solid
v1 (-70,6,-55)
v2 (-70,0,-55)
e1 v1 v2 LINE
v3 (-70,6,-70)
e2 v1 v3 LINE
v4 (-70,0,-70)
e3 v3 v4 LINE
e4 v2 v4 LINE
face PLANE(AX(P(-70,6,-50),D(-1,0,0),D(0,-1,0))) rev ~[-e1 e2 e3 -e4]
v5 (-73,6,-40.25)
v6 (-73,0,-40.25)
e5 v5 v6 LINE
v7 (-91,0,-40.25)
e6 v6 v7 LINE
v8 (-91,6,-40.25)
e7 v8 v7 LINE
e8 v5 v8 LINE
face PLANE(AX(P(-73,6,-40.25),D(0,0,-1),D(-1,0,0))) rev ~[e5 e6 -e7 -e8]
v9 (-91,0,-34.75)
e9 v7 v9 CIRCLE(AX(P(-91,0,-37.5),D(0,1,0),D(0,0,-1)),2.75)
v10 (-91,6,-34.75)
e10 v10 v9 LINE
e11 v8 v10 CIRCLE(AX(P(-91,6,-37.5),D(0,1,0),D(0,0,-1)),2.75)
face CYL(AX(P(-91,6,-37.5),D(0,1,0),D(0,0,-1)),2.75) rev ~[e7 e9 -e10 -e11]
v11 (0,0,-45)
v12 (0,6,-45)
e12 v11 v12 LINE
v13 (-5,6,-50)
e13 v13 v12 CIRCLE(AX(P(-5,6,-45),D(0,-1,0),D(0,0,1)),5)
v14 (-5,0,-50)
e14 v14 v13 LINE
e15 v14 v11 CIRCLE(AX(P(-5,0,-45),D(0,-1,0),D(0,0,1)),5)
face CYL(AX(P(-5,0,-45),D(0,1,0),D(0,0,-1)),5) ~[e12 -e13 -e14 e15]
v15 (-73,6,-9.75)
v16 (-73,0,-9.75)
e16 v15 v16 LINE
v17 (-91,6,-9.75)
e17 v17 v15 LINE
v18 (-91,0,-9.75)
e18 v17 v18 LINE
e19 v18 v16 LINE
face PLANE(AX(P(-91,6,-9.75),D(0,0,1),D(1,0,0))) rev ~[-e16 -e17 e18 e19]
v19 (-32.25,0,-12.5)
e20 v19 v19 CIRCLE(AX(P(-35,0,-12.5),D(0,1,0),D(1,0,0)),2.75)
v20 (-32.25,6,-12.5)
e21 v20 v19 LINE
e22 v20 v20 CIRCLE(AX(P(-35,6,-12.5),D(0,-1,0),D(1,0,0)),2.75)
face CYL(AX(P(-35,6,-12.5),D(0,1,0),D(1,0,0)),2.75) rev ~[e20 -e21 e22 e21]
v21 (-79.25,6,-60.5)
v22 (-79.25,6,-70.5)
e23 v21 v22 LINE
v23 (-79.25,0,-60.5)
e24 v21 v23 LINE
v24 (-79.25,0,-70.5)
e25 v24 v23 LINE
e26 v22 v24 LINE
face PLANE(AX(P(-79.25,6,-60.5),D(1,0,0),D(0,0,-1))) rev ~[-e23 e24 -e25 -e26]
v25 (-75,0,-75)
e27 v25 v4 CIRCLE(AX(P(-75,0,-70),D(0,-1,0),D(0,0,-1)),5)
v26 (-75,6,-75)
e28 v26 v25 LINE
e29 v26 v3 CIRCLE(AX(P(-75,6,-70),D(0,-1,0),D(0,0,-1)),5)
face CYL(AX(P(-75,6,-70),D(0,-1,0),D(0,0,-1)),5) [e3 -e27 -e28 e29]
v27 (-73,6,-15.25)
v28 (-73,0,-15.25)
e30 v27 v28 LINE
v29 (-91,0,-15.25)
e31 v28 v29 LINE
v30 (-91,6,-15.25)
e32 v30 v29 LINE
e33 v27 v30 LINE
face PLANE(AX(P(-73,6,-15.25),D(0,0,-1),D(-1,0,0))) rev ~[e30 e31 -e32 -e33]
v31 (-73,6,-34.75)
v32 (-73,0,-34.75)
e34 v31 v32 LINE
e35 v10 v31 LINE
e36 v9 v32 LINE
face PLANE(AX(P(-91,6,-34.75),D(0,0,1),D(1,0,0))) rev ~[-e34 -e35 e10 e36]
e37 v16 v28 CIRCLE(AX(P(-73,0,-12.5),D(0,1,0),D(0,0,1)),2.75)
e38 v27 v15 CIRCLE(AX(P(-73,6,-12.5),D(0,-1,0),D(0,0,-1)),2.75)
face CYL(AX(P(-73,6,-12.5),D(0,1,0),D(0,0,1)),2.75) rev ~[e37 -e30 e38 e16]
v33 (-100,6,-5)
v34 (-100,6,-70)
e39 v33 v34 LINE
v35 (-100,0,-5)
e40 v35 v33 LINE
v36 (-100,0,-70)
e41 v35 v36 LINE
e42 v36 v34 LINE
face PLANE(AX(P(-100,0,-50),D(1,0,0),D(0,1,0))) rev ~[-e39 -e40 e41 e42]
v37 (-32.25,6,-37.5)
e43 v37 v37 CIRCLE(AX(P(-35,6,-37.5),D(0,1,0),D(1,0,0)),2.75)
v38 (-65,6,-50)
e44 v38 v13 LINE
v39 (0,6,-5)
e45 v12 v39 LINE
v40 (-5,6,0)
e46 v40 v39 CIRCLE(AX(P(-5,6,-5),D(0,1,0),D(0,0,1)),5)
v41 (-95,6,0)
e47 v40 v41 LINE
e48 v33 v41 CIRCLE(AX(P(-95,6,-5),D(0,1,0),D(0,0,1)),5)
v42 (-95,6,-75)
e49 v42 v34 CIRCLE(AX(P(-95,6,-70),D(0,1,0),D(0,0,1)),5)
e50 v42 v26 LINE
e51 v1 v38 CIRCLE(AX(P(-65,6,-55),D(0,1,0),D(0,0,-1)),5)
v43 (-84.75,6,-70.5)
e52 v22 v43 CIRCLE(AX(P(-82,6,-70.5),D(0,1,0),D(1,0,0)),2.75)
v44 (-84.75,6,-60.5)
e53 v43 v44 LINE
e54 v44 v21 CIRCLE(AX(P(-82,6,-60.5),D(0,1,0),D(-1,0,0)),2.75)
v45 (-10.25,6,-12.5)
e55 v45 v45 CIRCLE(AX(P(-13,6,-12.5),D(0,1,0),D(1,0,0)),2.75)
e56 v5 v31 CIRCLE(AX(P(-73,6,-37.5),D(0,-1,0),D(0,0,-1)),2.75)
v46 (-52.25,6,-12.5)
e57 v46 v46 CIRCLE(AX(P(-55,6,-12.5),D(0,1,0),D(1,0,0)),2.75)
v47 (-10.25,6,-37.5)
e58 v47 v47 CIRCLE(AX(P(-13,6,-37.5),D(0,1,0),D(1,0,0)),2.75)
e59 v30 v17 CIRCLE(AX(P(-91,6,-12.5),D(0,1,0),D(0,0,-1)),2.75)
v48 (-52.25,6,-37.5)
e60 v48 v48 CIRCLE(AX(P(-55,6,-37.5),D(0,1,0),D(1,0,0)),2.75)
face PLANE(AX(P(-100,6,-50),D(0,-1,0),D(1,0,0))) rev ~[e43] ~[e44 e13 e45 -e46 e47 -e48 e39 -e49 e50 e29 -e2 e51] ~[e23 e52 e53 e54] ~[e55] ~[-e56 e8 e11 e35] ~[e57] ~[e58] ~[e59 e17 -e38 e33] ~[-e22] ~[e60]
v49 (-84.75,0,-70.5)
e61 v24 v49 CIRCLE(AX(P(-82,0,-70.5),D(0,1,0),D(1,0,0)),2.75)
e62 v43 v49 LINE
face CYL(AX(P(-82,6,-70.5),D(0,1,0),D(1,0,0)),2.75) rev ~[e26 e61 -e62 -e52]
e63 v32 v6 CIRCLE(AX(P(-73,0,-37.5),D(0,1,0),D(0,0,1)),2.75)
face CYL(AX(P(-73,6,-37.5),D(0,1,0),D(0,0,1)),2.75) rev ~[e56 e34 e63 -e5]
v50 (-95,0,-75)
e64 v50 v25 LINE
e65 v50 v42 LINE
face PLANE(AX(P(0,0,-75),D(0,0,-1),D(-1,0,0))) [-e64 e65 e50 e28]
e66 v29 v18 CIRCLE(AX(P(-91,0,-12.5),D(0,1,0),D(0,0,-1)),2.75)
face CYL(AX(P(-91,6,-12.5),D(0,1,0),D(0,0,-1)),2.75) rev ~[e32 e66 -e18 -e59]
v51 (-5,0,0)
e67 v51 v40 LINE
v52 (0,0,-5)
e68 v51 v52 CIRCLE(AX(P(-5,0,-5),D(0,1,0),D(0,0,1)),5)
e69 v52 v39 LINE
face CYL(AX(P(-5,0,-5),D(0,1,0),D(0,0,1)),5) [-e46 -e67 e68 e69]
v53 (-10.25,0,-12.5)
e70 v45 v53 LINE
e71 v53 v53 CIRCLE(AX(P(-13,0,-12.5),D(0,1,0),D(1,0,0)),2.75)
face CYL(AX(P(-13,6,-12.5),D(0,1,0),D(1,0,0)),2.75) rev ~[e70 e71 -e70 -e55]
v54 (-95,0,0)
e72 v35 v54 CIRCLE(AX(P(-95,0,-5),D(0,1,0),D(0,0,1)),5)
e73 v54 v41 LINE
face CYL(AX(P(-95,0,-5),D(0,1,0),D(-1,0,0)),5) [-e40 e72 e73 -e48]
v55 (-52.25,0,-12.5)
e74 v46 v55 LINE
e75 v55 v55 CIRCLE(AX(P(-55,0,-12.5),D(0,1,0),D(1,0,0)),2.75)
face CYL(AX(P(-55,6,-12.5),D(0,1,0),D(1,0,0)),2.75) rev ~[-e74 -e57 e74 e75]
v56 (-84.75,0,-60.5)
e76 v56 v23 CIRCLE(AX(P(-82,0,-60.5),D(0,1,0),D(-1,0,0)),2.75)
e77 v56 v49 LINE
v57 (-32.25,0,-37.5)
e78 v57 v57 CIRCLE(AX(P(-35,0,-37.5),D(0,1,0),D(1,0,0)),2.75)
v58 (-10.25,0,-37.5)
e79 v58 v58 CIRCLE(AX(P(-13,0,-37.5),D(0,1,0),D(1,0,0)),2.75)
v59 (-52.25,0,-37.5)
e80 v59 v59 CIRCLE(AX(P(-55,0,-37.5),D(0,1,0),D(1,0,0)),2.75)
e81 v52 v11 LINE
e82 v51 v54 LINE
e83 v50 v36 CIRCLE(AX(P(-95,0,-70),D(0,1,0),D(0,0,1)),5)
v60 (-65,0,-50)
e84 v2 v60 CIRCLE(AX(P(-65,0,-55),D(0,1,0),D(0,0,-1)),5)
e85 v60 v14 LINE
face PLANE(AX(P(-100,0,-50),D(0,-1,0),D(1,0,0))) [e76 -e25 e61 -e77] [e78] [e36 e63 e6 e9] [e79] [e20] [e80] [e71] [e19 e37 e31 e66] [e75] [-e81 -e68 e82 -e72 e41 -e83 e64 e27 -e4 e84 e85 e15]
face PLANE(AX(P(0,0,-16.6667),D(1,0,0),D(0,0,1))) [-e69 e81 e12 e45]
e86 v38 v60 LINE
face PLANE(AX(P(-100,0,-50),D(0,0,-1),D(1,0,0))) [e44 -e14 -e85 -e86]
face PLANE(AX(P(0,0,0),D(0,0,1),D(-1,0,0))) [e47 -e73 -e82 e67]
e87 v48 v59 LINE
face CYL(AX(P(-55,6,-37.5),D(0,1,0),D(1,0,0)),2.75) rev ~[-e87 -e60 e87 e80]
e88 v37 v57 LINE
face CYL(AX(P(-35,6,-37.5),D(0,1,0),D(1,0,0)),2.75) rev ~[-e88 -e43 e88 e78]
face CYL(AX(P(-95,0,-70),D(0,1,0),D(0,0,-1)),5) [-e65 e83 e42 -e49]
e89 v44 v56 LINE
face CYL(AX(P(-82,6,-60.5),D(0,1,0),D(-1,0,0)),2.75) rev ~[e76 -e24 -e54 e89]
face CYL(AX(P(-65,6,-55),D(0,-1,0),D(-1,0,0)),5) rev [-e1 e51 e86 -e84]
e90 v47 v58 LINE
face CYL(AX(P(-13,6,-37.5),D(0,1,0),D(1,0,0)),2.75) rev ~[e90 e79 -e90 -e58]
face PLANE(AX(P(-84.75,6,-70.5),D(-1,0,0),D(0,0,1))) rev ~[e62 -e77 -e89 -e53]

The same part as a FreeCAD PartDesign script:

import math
import FreeCAD as App
import Part
import Sketcher

V = App.Vector
Q = App.Units.Quantity


def edges_at(feature, points):
    """Names of the edges that pass closest to the given points."""
    edges = feature.Shape.Edges
    near = lambda p: min(range(len(edges)), key=lambda i: edges[i].distToShape(Part.Vertex(*p))[0])
    return sorted({f"Edge{near(p) + 1}" for p in points})

doc = App.newDocument("Part")
body = doc.addObject("PartDesign::Body", "Body")

# Sketch on XZ plane
sketch1 = body.newObject("Sketcher::SketchObject", "Sketch")
sketch1.AttachmentSupport = (doc.getObject("XZ_Plane"), [""])
sketch1.MapMode = "FlatFace"
sketch1.addGeometry([
    Part.LineSegment(V(-100, 0, 0), V(0, 0, 0)),
    Part.LineSegment(V(0, 0, 0), V(0, -50, 0)),
    Part.LineSegment(V(0, -50, 0), V(-100, -50, 0)),
    Part.LineSegment(V(-100, -50, 0), V(-100, 0, 0)),
], False)
sketch1.addConstraint([
    Sketcher.Constraint("Coincident", 0, 2, 1, 1),
    Sketcher.Constraint("Coincident", 1, 2, 2, 1),
    Sketcher.Constraint("Coincident", 2, 2, 3, 1),
    Sketcher.Constraint("Coincident", 3, 2, 0, 1),
    Sketcher.Constraint("Horizontal", 0),
    Sketcher.Constraint("Vertical", 1),
    Sketcher.Constraint("Horizontal", 2),
    Sketcher.Constraint("Vertical", 3),
    Sketcher.Constraint("Coincident", 0, 2, -1, 1),
    Sketcher.Constraint("DistanceX", 0, 1, 0, 2, Q("100 mm")),
    Sketcher.Constraint("DistanceY", 1, 2, 1, 1, Q("50 mm")),
])
pad1 = body.newObject("PartDesign::Pad", "Pad")
pad1.Profile = sketch1
pad1.Length = 6
pad1.Reversed = True

# Sketch on XZ plane
sketch2 = body.newObject("Sketcher::SketchObject", "Sketch001")
sketch2.AttachmentSupport = (doc.getObject("XZ_Plane"), [""])
sketch2.MapMode = "FlatFace"
sketch2.AttachmentOffset = App.Placement(V(0, 0, -6), App.Rotation())
sketch2.addGeometry([
    Part.Circle(V(-13, -12.5, 0), V(0, 0, 1), 2.8),
    Part.Circle(V(-13, -37.5, 0), V(0, 0, 1), 2.8),
], False)
sketch2.addConstraint([
    Sketcher.Constraint("Equal", 0, 1),
    Sketcher.Constraint("Vertical", 0, 3, 1, 3),
    Sketcher.Constraint("Diameter", 0, Q("5.5 mm")),
    Sketcher.Constraint("DistanceX", 0, 3, -1, 1, Q("13 mm")),
    Sketcher.Constraint("DistanceY", 1, 3, 0, 3, Q("25 mm")),
    Sketcher.Constraint("DistanceY", 0, 3, -1, 1, Q("12.5 mm")),
])
pocket1 = body.newObject("PartDesign::Pocket", "Pocket")
pocket1.Profile = sketch2
pocket1.Type = "ThroughAll"
pocket1.Reversed = True

# Sketch on XZ plane
sketch3 = body.newObject("Sketcher::SketchObject", "Sketch002")
sketch3.AttachmentSupport = (doc.getObject("XZ_Plane"), [""])
sketch3.MapMode = "FlatFace"
sketch3.AttachmentOffset = App.Placement(V(0, 0, -6), App.Rotation())
sketch3.addGeometry([
    Part.ArcOfCircle(Part.Circle(V(-73, -12.5, 0), V(0, 0, 1), 2.8), math.radians(-90), math.radians(90)),
    Part.LineSegment(V(-73, -15.2, 0), V(-91, -15.2, 0)),
    Part.ArcOfCircle(Part.Circle(V(-91, -12.5, 0), V(0, 0, 1), 2.8), math.radians(90), math.radians(270)),
    Part.LineSegment(V(-91, -9.8, 0), V(-73, -9.8, 0)),
], False)
sketch3.addConstraint([
    Sketcher.Constraint("Tangent", 0, 1, 1, 1),
    Sketcher.Constraint("Tangent", 1, 2, 2, 2),
    Sketcher.Constraint("Tangent", 2, 1, 3, 1),
    Sketcher.Constraint("Tangent", 3, 2, 0, 2),
    Sketcher.Constraint("Horizontal", 1),
    Sketcher.Constraint("Horizontal", 3),
    Sketcher.Constraint("DistanceX", 1, 2, 1, 1, Q("18 mm")),
    Sketcher.Constraint("Radius", 0, Q("2.75 mm")),
    Sketcher.Constraint("DistanceX", 0, 3, -1, 1, Q("73 mm")),
    Sketcher.Constraint("DistanceY", 0, 3, -1, 1, Q("12.5 mm")),
])
pocket2 = body.newObject("PartDesign::Pocket", "Pocket001")
pocket2.Profile = sketch3
pocket2.Type = "ThroughAll"
pocket2.Reversed = True
doc.recompute()

linearpattern = body.newObject("PartDesign::LinearPattern", "LinearPattern")
linearpattern.Originals = [pocket2]
linearpattern.Direction = (doc.getObject("Z_Axis"), [""])
linearpattern.Mode = "offset"
linearpattern.Offset = 25
linearpattern.Occurrences = 2
linearpattern.Reversed = True
body.Tip = linearpattern

# Sketch on XY plane
sketch4 = body.newObject("Sketcher::SketchObject", "Sketch003")
sketch4.AttachmentSupport = (doc.getObject("XY_Plane"), [""])
sketch4.MapMode = "FlatFace"
sketch4.AttachmentOffset = App.Placement(V(0, 0, -50), App.Rotation())
sketch4.addGeometry([
    Part.LineSegment(V(-70, 0, 0), V(-100, 0, 0)),
    Part.LineSegment(V(-100, 0, 0), V(-100, 6, 0)),
    Part.LineSegment(V(-100, 6, 0), V(-70, 6, 0)),
    Part.LineSegment(V(-70, 6, 0), V(-70, 0, 0)),
], False)
sketch4.addConstraint([
    Sketcher.Constraint("Coincident", 0, 2, 1, 1),
    Sketcher.Constraint("Coincident", 1, 2, 2, 1),
    Sketcher.Constraint("Coincident", 2, 2, 3, 1),
    Sketcher.Constraint("Coincident", 3, 2, 0, 1),
    Sketcher.Constraint("Horizontal", 0),
    Sketcher.Constraint("Vertical", 1),
    Sketcher.Constraint("Horizontal", 2),
    Sketcher.Constraint("Vertical", 3),
    Sketcher.Constraint("PointOnObject", 0, 2, -1),
    Sketcher.Constraint("DistanceX", 0, 2, 0, 1, Q("30 mm")),
    Sketcher.Constraint("DistanceY", 1, 1, 1, 2, Q("6 mm")),
    Sketcher.Constraint("DistanceX", 0, 2, -1, 1, Q("100 mm")),
])
pad2 = body.newObject("PartDesign::Pad", "Pad001")
pad2.Profile = sketch4
pad2.Length = 25
pad2.Reversed = True

# Sketch on XZ plane
sketch5 = body.newObject("Sketcher::SketchObject", "Sketch004")
sketch5.AttachmentSupport = (doc.getObject("XZ_Plane"), [""])
sketch5.MapMode = "FlatFace"
sketch5.AttachmentOffset = App.Placement(V(0, 0, -6), App.Rotation())
sketch5.addGeometry([
    Part.ArcOfCircle(Part.Circle(V(-82, -60.5, 0), V(0, 0, 1), 2.8), math.radians(0), math.radians(180)),
    Part.LineSegment(V(-79.2, -60.5, 0), V(-79.2, -70.5, 0)),
    Part.ArcOfCircle(Part.Circle(V(-82, -70.5, 0), V(0, 0, 1), 2.8), math.radians(180), math.radians(360)),
    Part.LineSegment(V(-84.8, -70.5, 0), V(-84.8, -60.5, 0)),
], False)
sketch5.addConstraint([
    Sketcher.Constraint("Tangent", 0, 1, 1, 1),
    Sketcher.Constraint("Tangent", 1, 2, 2, 2),
    Sketcher.Constraint("Tangent", 2, 1, 3, 1),
    Sketcher.Constraint("Tangent", 3, 2, 0, 2),
    Sketcher.Constraint("Vertical", 1),
    Sketcher.Constraint("Vertical", 3),
    Sketcher.Constraint("DistanceY", 1, 2, 1, 1, Q("10 mm")),
    Sketcher.Constraint("Radius", 0, Q("2.75 mm")),
    Sketcher.Constraint("DistanceX", 0, 3, -1, 1, Q("82 mm")),
    Sketcher.Constraint("DistanceY", 0, 3, -1, 1, Q("60.5 mm")),
])
pocket3 = body.newObject("PartDesign::Pocket", "Pocket002")
pocket3.Profile = sketch5
pocket3.Type = "ThroughAll"
pocket3.Reversed = True
doc.recompute()

fillet = body.newObject("PartDesign::Fillet", "Fillet")
fillet.Base = (pocket3, edges_at(pocket3, [
    (-100, 3, 0),
    (0, 3, 0),
    (-70, 3, -75),
    (-100, 3, -75),
    (0, 3, -50),
    (-70, 3, -50),
]))
fillet.Radius = 5

# Sketch on XZ plane
sketch6 = body.newObject("Sketcher::SketchObject", "Sketch005")
sketch6.AttachmentSupport = (doc.getObject("XZ_Plane"), [""])
sketch6.MapMode = "FlatFace"
sketch6.AttachmentOffset = App.Placement(V(0, 0, -6), App.Rotation())
sketch6.addGeometry([
    Part.Circle(V(-55, -12.5, 0), V(0, 0, 1), 2.8),
    Part.Circle(V(-35, -12.5, 0), V(0, 0, 1), 2.8),
    Part.Circle(V(-35, -37.5, 0), V(0, 0, 1), 2.8),
    Part.Circle(V(-55, -37.5, 0), V(0, 0, 1), 2.8),
], False)
sketch6.addConstraint([
    Sketcher.Constraint("Equal", 0, 1),
    Sketcher.Constraint("Equal", 1, 2),
    Sketcher.Constraint("Equal", 2, 3),
    Sketcher.Constraint("Horizontal", 0, 3, 1, 3),
    Sketcher.Constraint("Horizontal", 2, 3, 3, 3),
    Sketcher.Constraint("Vertical", 1, 3, 2, 3),
    Sketcher.Constraint("Vertical", 0, 3, 3, 3),
    Sketcher.Constraint("Diameter", 0, Q("5.5 mm")),
    Sketcher.Constraint("DistanceX", 0, 3, 1, 3, Q("20 mm")),
    Sketcher.Constraint("DistanceY", 2, 3, 1, 3, Q("25 mm")),
    Sketcher.Constraint("DistanceX", 0, 3, -1, 1, Q("55 mm")),
    Sketcher.Constraint("DistanceY", 0, 3, -1, 1, Q("12.5 mm")),
])
pocket4 = body.newObject("PartDesign::Pocket", "Pocket003")
pocket4.Profile = sketch6
pocket4.Type = "ThroughAll"
pocket4.Reversed = True

doc.recompute()
